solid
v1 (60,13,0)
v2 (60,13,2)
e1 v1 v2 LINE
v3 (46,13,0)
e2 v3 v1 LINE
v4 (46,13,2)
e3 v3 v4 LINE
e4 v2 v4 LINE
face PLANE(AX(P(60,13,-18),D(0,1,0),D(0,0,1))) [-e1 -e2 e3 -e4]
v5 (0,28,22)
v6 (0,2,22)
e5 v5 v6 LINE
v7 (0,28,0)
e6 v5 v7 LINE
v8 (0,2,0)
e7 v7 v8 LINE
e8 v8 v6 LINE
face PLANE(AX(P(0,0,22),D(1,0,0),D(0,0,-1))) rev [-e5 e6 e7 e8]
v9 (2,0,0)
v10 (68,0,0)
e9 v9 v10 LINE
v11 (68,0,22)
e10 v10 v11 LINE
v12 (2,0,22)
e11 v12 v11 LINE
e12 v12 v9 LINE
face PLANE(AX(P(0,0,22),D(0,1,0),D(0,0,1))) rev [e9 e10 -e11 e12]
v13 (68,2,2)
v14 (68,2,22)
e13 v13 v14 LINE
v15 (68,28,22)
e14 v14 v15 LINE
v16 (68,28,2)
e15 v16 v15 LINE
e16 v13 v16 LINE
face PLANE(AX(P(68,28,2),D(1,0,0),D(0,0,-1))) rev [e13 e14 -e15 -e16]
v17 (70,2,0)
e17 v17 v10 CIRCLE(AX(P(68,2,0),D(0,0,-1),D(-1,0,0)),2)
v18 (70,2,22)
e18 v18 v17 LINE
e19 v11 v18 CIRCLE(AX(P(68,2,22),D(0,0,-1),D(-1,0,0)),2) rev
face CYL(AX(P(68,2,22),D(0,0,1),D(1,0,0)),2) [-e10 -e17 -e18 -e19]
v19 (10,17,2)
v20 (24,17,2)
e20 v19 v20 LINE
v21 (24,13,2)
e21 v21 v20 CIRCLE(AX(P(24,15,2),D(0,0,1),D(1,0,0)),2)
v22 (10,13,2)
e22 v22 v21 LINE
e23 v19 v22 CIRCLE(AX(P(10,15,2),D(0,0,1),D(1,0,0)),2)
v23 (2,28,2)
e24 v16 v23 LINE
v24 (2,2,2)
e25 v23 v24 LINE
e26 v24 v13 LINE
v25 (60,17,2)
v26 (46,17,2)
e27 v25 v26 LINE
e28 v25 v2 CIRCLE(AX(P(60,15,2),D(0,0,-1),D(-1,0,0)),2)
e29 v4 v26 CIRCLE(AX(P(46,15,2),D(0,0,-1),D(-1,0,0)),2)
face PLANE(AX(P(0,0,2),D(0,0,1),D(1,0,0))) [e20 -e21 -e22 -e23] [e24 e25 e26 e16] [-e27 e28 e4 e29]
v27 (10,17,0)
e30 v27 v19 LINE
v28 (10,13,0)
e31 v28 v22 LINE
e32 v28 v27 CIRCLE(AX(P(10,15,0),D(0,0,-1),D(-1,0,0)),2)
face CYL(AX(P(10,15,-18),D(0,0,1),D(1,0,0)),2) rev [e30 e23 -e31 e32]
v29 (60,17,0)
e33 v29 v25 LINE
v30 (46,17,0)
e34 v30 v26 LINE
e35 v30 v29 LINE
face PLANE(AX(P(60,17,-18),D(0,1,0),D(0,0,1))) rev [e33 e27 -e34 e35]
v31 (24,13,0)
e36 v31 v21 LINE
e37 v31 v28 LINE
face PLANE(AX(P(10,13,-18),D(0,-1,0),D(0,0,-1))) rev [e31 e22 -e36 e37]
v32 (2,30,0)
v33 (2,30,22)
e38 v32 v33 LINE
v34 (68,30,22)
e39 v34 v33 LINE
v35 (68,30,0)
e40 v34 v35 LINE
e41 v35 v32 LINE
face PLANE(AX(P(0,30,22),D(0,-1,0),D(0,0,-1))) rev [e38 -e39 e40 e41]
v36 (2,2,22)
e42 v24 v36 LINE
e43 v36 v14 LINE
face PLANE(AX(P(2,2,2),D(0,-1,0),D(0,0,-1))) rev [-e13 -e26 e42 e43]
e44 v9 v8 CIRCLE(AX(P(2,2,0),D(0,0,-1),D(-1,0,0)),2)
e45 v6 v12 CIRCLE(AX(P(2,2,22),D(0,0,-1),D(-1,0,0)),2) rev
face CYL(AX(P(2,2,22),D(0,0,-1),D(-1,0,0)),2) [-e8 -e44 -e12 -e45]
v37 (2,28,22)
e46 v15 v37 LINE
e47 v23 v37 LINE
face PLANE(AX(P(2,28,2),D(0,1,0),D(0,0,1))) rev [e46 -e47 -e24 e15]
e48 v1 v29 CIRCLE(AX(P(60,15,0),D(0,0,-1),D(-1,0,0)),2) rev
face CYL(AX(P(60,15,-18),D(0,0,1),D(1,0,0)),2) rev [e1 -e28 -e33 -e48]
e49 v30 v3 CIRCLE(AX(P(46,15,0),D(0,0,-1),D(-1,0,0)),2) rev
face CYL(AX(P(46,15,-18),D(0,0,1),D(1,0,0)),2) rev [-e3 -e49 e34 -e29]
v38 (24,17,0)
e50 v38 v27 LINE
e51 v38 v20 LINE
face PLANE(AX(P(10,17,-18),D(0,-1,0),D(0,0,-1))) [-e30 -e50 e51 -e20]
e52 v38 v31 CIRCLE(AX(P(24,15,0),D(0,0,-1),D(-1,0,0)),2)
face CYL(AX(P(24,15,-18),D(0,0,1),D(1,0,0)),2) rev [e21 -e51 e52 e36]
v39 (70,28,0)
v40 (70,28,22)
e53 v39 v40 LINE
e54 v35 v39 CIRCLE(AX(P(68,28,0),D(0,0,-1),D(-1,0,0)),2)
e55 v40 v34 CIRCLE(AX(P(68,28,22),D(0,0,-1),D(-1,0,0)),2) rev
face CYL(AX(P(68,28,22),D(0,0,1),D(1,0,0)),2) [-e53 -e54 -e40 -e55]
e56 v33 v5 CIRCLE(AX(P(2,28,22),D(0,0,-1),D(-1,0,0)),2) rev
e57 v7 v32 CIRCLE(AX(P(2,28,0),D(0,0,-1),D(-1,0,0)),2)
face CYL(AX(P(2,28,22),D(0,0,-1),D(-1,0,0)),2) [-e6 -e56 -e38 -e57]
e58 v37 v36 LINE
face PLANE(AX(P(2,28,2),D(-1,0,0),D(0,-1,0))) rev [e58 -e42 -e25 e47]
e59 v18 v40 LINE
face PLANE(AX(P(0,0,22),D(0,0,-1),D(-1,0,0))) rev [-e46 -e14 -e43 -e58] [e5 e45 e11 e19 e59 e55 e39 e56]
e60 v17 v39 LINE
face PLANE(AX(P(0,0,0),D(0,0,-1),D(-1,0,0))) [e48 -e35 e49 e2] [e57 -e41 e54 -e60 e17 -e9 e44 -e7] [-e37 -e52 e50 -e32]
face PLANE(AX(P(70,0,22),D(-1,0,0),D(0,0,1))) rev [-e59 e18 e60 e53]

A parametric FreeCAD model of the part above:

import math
import FreeCAD as App
import Part
import Sketcher
Q = App.Units.Quantity


def edges_at(feature, points):
    """Names of the edges that pass closest to the given points."""
    edges = feature.Shape.Edges
    near = lambda p: min(range(len(edges)), key=lambda i: edges[i].distToShape(Part.Vertex(*p))[0])
    return sorted({f"Edge{near(p) + 1}" for p in points})

doc = App.newDocument("Part")
params = doc.addObject("Spreadsheet::Sheet", "Params")
for row, (alias, value) in enumerate([
    ("sketch1_width", "70 mm"),
    ("sketch1_height", "30 mm"),
    ("pad1_length", "22 mm"),
    ("sketch2_width", "66 mm"),
    ("sketch2_height", "26 mm"),
    ("pocket1_length", "20 mm"),
    ("sketch3_radius", "2 mm"),
    ("sketch3_width", "14 mm"),
    ("pocket2_length", "20 mm"),
    ("fillet_radius", "2 mm"),
    ("fillet2_radius", "2 mm"),
    ("fillet3_radius", "2 mm"),
    ("fillet4_radius", "2 mm"),
], start=1):
    params.set(f"A{row}", alias)
    params.set(f"B{row}", "=" + value)
    params.setAlias(f"B{row}", alias)

body = doc.addObject("PartDesign::Body", "Body")

# Sketch on XY plane
sketch1 = body.newObject("Sketcher::SketchObject", "Sketch")
sketch1.AttachmentSupport = (doc.getObject("XY_Plane"), [""])
sketch1.MapMode = "FlatFace"
sketch1.addGeometry([
    Part.LineSegment(App.Vector(0, 30, 0), App.Vector(0, 0, 0)),
    Part.LineSegment(App.Vector(0, 0, 0), App.Vector(70, 0, 0)),
    Part.LineSegment(App.Vector(70, 0, 0), App.Vector(70, 30, 0)),
    Part.LineSegment(App.Vector(70, 30, 0), App.Vector(0, 30, 0)),
], False)
sketch1.addConstraint([
    Sketcher.Constraint("Coincident", 0, 2, 1, 1),
    Sketcher.Constraint("Coincident", 1, 2, 2, 1),
    Sketcher.Constraint("Coincident", 2, 2, 3, 1),
    Sketcher.Constraint("Coincident", 3, 2, 0, 1),
    Sketcher.Constraint("Vertical", 0),
    Sketcher.Constraint("Horizontal", 1),
    Sketcher.Constraint("Vertical", 2),
    Sketcher.Constraint("Horizontal", 3),
    Sketcher.Constraint("Coincident", 0, 2, -1, 1),
    Sketcher.Constraint("DistanceX", 1, 1, 1, 2, Q("70 mm")),
    Sketcher.Constraint("DistanceY", 0, 2, 0, 1, Q("30 mm")),
])
sketch1.setExpression("Constraints[9]", "Params.sketch1_width")
sketch1.setExpression("Constraints[10]", "Params.sketch1_height")
pad1 = body.newObject("PartDesign::Pad", "Pad")
pad1.Profile = sketch1
pad1.setExpression("Length", "Params.pad1_length")

# Sketch on XY plane
sketch2 = body.newObject("Sketcher::SketchObject", "Sketch001")
sketch2.AttachmentSupport = (doc.getObject("XY_Plane"), [""])
sketch2.MapMode = "FlatFace"
sketch2.AttachmentOffset = App.Placement(App.Vector(0, 0, 22), App.Rotation())
sketch2.addGeometry([
    Part.LineSegment(App.Vector(2, 28, 0), App.Vector(2, 2, 0)),
    Part.LineSegment(App.Vector(2, 2, 0), App.Vector(68, 2, 0)),
    Part.LineSegment(App.Vector(68, 2, 0), App.Vector(68, 28, 0)),
    Part.LineSegment(App.Vector(68, 28, 0), App.Vector(2, 28, 0)),
], False)
sketch2.addConstraint([
    Sketcher.Constraint("Coincident", 0, 2, 1, 1),
    Sketcher.Constraint("Coincident", 1, 2, 2, 1),
    Sketcher.Constraint("Coincident", 2, 2, 3, 1),
    Sketcher.Constraint("Coincident", 3, 2, 0, 1),
    Sketcher.Constraint("Vertical", 0),
    Sketcher.Constraint("Horizontal", 1),
    Sketcher.Constraint("Vertical", 2),
    Sketcher.Constraint("Horizontal", 3),
    Sketcher.Constraint("DistanceX", 1, 1, 1, 2, Q("66 mm")),
    Sketcher.Constraint("DistanceY", 0, 2, 0, 1, Q("26 mm")),
    Sketcher.Constraint("DistanceX", -1, 1, 0, 2, Q("2 mm")),
    Sketcher.Constraint("DistanceY", -1, 1, 0, 2, Q("2 mm")),
])
sketch2.setExpression("Constraints[8]", "Params.sketch2_width")
sketch2.setExpression("Constraints[9]", "Params.sketch2_height")
pocket1 = body.newObject("PartDesign::Pocket", "Pocket")
pocket1.Profile = sketch2
pocket1.setExpression("Length", "Params.pocket1_length")

# Sketch on XY plane
sketch3 = body.newObject("Sketcher::SketchObject", "Sketch002")
sketch3.AttachmentSupport = (doc.getObject("XY_Plane"), [""])
sketch3.MapMode = "FlatFace"
sketch3.AttachmentOffset = App.Placement(App.Vector(0, 0, 2), App.Rotation())
sketch3.addGeometry([
    Part.LineSegment(App.Vector(24, 17, 0), App.Vector(10, 17, 0)),  # 0
    Part.ArcOfCircle(Part.Circle(App.Vector(10, 15, 0), App.Vector(0, 0, 1), 2), math.radians(90), math.radians(270)),  # 1
    Part.LineSegment(App.Vector(10, 13, 0), App.Vector(24, 13, 0)),  # 2
    Part.ArcOfCircle(Part.Circle(App.Vector(24, 15, 0), App.Vector(0, 0, 1), 2), math.radians(-90), math.radians(90)),  # 3
    Part.LineSegment(App.Vector(60, 17, 0), App.Vector(46, 17, 0)),  # 4
    Part.ArcOfCircle(Part.Circle(App.Vector(46, 15, 0), App.Vector(0, 0, 1), 2), math.radians(90), math.radians(270)),  # 5
    Part.LineSegment(App.Vector(46, 13, 0), App.Vector(60, 13, 0)),  # 6
    Part.ArcOfCircle(Part.Circle(App.Vector(60, 15, 0), App.Vector(0, 0, 1), 2), math.radians(-90), math.radians(90)),  # 7
], False)
sketch3.addConstraint([
    Sketcher.Constraint("Tangent", 0, 2, 1, 1),
    Sketcher.Constraint("Tangent", 1, 2, 2, 1),
    Sketcher.Constraint("Tangent", 2, 2, 3, 1),
    Sketcher.Constraint("Tangent", 3, 2, 0, 1),
    Sketcher.Constraint("Tangent", 4, 2, 5, 1),
    Sketcher.Constraint("Tangent", 5, 2, 6, 1),
    Sketcher.Constraint("Tangent", 6, 2, 7, 1),
    Sketcher.Constraint("Tangent", 7, 2, 4, 1),
    Sketcher.Constraint("Horizontal", 0),
    Sketcher.Constraint("Horizontal", 2),
    Sketcher.Constraint("Horizontal", 4),
    Sketcher.Constraint("Horizontal", 6),
    Sketcher.Constraint("Equal", 3, 5),
    Sketcher.Constraint("Horizontal", 3, 3, 5, 3),
    Sketcher.Constraint("Equal", 2, 4),
    Sketcher.Constraint("Radius", 1, Q("2 mm")),
    Sketcher.Constraint("DistanceX", 0, 2, 0, 1, Q("14 mm")),
    Sketcher.Constraint("DistanceX", -1, 1, 1, 3, Q("10 mm")),
    Sketcher.Constraint("DistanceY", -1, 1, 1, 3, Q("15 mm")),
    Sketcher.Constraint("DistanceX", -1, 1, 5, 3, Q("46 mm")),
])
sketch3.setExpression("Constraints[15]", "Params.sketch3_radius")
sketch3.setExpression("Constraints[16]", "Params.sketch3_width")
pocket2 = body.newObject("PartDesign::Pocket", "Pocket001")
pocket2.Profile = sketch3
pocket2.setExpression("Length", "Params.pocket2_length")
doc.recompute()

fillet = body.newObject("PartDesign::Fillet", "Fillet")
fillet.Base = (pocket2, edges_at(pocket2, [(70, 0, 11)]))
fillet.setExpression("Radius", "Params.fillet_radius")
doc.recompute()

fillet2 = body.newObject("PartDesign::Fillet", "Fillet001")
fillet2.Base = (fillet, edges_at(fillet, [(70, 30, 11)]))
fillet2.setExpression("Radius", "Params.fillet2_radius")
doc.recompute()

fillet3 = body.newObject("PartDesign::Fillet", "Fillet002")
fillet3.Base = (fillet2, edges_at(fillet2, [(0, 0, 11)]))
fillet3.setExpression("Radius", "Params.fillet3_radius")
doc.recompute()

fillet4 = body.newObject("PartDesign::Fillet", "Fillet003")
fillet4.Base = (fillet3, edges_at(fillet3, [(0, 30, 11)]))
fillet4.setExpression("Radius", "Params.fillet4_radius")

doc.recompute()
